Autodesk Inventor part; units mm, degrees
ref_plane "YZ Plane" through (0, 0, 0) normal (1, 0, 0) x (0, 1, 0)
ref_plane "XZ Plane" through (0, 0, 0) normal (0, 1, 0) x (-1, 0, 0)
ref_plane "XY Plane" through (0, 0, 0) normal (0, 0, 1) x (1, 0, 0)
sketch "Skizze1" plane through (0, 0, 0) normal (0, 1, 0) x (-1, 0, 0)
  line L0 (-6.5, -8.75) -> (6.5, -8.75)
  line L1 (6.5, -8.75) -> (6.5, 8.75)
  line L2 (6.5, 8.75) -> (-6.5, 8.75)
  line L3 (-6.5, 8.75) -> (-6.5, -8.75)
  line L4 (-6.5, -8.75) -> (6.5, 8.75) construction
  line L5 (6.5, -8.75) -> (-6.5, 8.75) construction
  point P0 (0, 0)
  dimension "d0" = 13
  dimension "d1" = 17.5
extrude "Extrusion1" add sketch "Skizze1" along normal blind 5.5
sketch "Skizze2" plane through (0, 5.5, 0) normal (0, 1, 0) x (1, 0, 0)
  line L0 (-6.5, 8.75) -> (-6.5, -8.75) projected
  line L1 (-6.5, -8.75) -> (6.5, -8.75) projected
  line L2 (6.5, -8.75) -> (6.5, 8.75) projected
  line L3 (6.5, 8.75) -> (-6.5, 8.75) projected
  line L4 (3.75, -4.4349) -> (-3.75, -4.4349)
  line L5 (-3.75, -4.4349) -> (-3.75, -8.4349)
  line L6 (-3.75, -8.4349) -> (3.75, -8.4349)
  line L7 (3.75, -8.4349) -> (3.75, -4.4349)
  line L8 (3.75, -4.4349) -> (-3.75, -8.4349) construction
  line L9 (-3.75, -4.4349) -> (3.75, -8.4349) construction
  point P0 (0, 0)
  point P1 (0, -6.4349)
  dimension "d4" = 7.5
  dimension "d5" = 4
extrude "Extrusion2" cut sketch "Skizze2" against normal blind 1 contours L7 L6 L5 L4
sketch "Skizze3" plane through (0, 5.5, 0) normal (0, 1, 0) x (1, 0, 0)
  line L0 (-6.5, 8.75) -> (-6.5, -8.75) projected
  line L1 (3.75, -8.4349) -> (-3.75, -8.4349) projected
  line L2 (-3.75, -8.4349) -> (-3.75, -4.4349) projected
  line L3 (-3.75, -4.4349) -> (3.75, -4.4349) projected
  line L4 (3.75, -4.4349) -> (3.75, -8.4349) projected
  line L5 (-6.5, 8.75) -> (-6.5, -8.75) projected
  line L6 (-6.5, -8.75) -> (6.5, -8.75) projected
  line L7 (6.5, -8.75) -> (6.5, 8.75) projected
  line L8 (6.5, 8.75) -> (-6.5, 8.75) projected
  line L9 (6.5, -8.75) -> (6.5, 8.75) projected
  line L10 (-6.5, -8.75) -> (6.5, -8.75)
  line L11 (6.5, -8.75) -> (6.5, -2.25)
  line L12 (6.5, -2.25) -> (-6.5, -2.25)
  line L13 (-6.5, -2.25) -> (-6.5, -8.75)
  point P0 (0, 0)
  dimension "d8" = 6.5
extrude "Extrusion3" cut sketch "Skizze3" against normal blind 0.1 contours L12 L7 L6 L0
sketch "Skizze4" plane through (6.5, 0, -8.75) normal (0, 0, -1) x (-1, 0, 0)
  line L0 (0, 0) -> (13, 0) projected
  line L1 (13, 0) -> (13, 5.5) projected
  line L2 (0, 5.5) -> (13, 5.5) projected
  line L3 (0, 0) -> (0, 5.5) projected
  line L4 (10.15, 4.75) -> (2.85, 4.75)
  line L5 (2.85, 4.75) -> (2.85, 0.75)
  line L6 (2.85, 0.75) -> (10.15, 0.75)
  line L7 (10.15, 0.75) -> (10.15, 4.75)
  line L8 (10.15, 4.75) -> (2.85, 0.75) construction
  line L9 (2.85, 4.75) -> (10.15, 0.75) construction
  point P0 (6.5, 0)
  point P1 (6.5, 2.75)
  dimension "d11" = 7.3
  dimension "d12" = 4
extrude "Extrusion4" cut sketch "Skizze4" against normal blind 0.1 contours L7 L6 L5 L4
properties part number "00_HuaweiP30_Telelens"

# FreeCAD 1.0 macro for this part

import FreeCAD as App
import Part
import Sketcher
Q = App.Units.Quantity


def add_polygon(sketch, points):
    """Adds a closed chain of lines whose ends are joined by coincident constraints."""
    first, n = sketch.GeometryCount, len(points)
    for a, b in zip(points, points[1:] + points[:1]):
        sketch.addGeometry(Part.LineSegment(App.Vector(*a, 0), App.Vector(*b, 0)), False)
    for i in range(n):
        sketch.addConstraint(Sketcher.Constraint("Coincident", first + i, 2, first + (i + 1) % n, 1))

doc = App.newDocument("Part")
body = doc.addObject("PartDesign::Body", "Body")

# Sketch on XZ plane
sketch1 = doc.addObject("Sketcher::SketchObject", "Sketch")
body.addObject(sketch1)
sketch1.AttachmentSupport = (doc.XZ_Plane, [""])
sketch1.MapMode = "FlatFace"
add_polygon(sketch1, [(6, 9), (6, -9), (-6, -9), (-6, 9)])  # lines 0-3
sketch1.addConstraint(Sketcher.Constraint("Vertical", 0))
sketch1.addConstraint(Sketcher.Constraint("Horizontal", 1))
sketch1.addConstraint(Sketcher.Constraint("Vertical", 2))
sketch1.addConstraint(Sketcher.Constraint("Horizontal", 3))
sketch1.addConstraint(Sketcher.Constraint("Symmetric", 0, 2, 2, 2, -1, 1))
sketch1.addConstraint(Sketcher.Constraint("DistanceX", 1, 2, 1, 1, Q("13 mm")))
sketch1.addConstraint(Sketcher.Constraint("DistanceY", 0, 2, 0, 1, Q("17.5 mm")))
pad1 = doc.addObject("PartDesign::Pad", "Pad")
body.addObject(pad1)
pad1.Profile = sketch1
pad1.Length = 5.5
pad1.Reversed = True

# Sketch on XZ plane
sketch2 = doc.addObject("Sketcher::SketchObject", "Sketch001")
body.addObject(sketch2)
sketch2.AttachmentSupport = (doc.XZ_Plane, [""])
sketch2.MapMode = "FlatFace"
sketch2.AttachmentOffset = App.Placement(App.Vector(0, 0, -5.5), App.Rotation())
add_polygon(sketch2, [(3.8, 8.4), (3.8, 4.4), (-3.8, 4.4), (-3.8, 8.4)])  # lines 0-3
sketch2.addConstraint(Sketcher.Constraint("Vertical", 0))
sketch2.addConstraint(Sketcher.Constraint("Horizontal", 1))
sketch2.addConstraint(Sketcher.Constraint("Vertical", 2))
sketch2.addConstraint(Sketcher.Constraint("Horizontal", 3))
sketch2.addConstraint(Sketcher.Constraint("DistanceY", 0, 2, 0, 1, Q("4 mm")))
sketch2.addConstraint(Sketcher.Constraint("DistanceX", 1, 2, 1, 1, Q("7.5 mm")))
sketch2.addConstraint(Sketcher.Constraint("DistanceX", -1, 1, 0, 2, Q("3.75 mm")))
sketch2.addConstraint(Sketcher.Constraint("DistanceY", -1, 1, 0, 2, Q("4.435 mm")))
pocket1 = doc.addObject("PartDesign::Pocket", "Pocket")
body.addObject(pocket1)
pocket1.Profile = sketch2
pocket1.Length = 1
pocket1.Reversed = True

# Sketch on XZ plane
sketch3 = doc.addObject("Sketcher::SketchObject", "Sketch002")
body.addObject(sketch3)
sketch3.AttachmentSupport = (doc.XZ_Plane, [""])
sketch3.MapMode = "FlatFace"
sketch3.AttachmentOffset = App.Placement(App.Vector(0, 0, -5.5), App.Rotation())
add_polygon(sketch3, [(6.5, 2.2), (-6.5, 2.2), (-6.5, 8.8), (6.5, 8.8)])  # lines 0-3
add_polygon(sketch3, [(3.8, 4.4), (3.8, 8.4), (-3.8, 8.4), (-3.8, 4.4)])  # lines 4-7
sketch3.addConstraint(Sketcher.Constraint("Horizontal", 0))
sketch3.addConstraint(Sketcher.Constraint("Vertical", 1))
sketch3.addConstraint(Sketcher.Constraint("Horizontal", 2))
sketch3.addConstraint(Sketcher.Constraint("Vertical", 3))
sketch3.addConstraint(Sketcher.Constraint("Vertical", 4))
sketch3.addConstraint(Sketcher.Constraint("Horizontal", 5))
sketch3.addConstraint(Sketcher.Constraint("Vertical", 6))
sketch3.addConstraint(Sketcher.Constraint("Horizontal", 7))
sketch3.addConstraint(Sketcher.Constraint("DistanceY", 1, 1, 1, 2, Q("6.5 mm")))
sketch3.addConstraint(Sketcher.Constraint("DistanceX", 0, 2, -1, 1, Q("6.5 mm")))
sketch3.addConstraint(Sketcher.Constraint("DistanceX", -1, 1, 2, 2, Q("6.5 mm")))
sketch3.addConstraint(Sketcher.Constraint("DistanceY", 4, 1, 4, 2, Q("4 mm")))
sketch3.addConstraint(Sketcher.Constraint("DistanceX", 5, 2, 5, 1, Q("7.5 mm")))
sketch3.addConstraint(Sketcher.Constraint("DistanceY", -1, 1, 0, 2, Q("2.25 mm")))
sketch3.addConstraint(Sketcher.Constraint("DistanceX", -1, 1, 4, 2, Q("3.75 mm")))
sketch3.addConstraint(Sketcher.Constraint("DistanceY", -1, 1, 4, 2, Q("8.435 mm")))
pocket2 = doc.addObject("PartDesign::Pocket", "Pocket001")
body.addObject(pocket2)
pocket2.Profile = sketch3
pocket2.Length = 0.1
pocket2.Reversed = True

# Sketch on XY plane
sketch4 = doc.addObject("Sketcher::SketchObject", "Sketch003")
body.addObject(sketch4)
sketch4.AttachmentSupport = (doc.XY_Plane, [""])
sketch4.MapMode = "FlatFace"
sketch4.AttachmentOffset = App.Placement(App.Vector(0, 0, -8.75), App.Rotation())
add_polygon(sketch4, [(-3.6, 0.8), (-3.6, 4.8), (3.6, 4.8), (3.6, 0.8)])  # lines 0-3
sketch4.addConstraint(Sketcher.Constraint("Vertical", 0))
sketch4.addConstraint(Sketcher.Constraint("Horizontal", 1))
sketch4.addConstraint(Sketcher.Constraint("Vertical", 2))
sketch4.addConstraint(Sketcher.Constraint("Horizontal", 3))
sketch4.addConstraint(Sketcher.Constraint("DistanceY", 0, 1, 0, 2, Q("4 mm")))
sketch4.addConstraint(Sketcher.Constraint("DistanceX", 1, 1, 1, 2, Q("7.3 mm")))
sketch4.addConstraint(Sketcher.Constraint("DistanceX", 0, 2, -1, 1, Q("3.65 mm")))
sketch4.addConstraint(Sketcher.Constraint("DistanceY", -1, 1, 0, 2, Q("4.75 mm")))
pocket3 = doc.addObject("PartDesign::Pocket", "Pocket002")
body.addObject(pocket3)
pocket3.Profile = sketch4
pocket3.Length = 0.1
pocket3.Reversed = True

doc.recompute()
